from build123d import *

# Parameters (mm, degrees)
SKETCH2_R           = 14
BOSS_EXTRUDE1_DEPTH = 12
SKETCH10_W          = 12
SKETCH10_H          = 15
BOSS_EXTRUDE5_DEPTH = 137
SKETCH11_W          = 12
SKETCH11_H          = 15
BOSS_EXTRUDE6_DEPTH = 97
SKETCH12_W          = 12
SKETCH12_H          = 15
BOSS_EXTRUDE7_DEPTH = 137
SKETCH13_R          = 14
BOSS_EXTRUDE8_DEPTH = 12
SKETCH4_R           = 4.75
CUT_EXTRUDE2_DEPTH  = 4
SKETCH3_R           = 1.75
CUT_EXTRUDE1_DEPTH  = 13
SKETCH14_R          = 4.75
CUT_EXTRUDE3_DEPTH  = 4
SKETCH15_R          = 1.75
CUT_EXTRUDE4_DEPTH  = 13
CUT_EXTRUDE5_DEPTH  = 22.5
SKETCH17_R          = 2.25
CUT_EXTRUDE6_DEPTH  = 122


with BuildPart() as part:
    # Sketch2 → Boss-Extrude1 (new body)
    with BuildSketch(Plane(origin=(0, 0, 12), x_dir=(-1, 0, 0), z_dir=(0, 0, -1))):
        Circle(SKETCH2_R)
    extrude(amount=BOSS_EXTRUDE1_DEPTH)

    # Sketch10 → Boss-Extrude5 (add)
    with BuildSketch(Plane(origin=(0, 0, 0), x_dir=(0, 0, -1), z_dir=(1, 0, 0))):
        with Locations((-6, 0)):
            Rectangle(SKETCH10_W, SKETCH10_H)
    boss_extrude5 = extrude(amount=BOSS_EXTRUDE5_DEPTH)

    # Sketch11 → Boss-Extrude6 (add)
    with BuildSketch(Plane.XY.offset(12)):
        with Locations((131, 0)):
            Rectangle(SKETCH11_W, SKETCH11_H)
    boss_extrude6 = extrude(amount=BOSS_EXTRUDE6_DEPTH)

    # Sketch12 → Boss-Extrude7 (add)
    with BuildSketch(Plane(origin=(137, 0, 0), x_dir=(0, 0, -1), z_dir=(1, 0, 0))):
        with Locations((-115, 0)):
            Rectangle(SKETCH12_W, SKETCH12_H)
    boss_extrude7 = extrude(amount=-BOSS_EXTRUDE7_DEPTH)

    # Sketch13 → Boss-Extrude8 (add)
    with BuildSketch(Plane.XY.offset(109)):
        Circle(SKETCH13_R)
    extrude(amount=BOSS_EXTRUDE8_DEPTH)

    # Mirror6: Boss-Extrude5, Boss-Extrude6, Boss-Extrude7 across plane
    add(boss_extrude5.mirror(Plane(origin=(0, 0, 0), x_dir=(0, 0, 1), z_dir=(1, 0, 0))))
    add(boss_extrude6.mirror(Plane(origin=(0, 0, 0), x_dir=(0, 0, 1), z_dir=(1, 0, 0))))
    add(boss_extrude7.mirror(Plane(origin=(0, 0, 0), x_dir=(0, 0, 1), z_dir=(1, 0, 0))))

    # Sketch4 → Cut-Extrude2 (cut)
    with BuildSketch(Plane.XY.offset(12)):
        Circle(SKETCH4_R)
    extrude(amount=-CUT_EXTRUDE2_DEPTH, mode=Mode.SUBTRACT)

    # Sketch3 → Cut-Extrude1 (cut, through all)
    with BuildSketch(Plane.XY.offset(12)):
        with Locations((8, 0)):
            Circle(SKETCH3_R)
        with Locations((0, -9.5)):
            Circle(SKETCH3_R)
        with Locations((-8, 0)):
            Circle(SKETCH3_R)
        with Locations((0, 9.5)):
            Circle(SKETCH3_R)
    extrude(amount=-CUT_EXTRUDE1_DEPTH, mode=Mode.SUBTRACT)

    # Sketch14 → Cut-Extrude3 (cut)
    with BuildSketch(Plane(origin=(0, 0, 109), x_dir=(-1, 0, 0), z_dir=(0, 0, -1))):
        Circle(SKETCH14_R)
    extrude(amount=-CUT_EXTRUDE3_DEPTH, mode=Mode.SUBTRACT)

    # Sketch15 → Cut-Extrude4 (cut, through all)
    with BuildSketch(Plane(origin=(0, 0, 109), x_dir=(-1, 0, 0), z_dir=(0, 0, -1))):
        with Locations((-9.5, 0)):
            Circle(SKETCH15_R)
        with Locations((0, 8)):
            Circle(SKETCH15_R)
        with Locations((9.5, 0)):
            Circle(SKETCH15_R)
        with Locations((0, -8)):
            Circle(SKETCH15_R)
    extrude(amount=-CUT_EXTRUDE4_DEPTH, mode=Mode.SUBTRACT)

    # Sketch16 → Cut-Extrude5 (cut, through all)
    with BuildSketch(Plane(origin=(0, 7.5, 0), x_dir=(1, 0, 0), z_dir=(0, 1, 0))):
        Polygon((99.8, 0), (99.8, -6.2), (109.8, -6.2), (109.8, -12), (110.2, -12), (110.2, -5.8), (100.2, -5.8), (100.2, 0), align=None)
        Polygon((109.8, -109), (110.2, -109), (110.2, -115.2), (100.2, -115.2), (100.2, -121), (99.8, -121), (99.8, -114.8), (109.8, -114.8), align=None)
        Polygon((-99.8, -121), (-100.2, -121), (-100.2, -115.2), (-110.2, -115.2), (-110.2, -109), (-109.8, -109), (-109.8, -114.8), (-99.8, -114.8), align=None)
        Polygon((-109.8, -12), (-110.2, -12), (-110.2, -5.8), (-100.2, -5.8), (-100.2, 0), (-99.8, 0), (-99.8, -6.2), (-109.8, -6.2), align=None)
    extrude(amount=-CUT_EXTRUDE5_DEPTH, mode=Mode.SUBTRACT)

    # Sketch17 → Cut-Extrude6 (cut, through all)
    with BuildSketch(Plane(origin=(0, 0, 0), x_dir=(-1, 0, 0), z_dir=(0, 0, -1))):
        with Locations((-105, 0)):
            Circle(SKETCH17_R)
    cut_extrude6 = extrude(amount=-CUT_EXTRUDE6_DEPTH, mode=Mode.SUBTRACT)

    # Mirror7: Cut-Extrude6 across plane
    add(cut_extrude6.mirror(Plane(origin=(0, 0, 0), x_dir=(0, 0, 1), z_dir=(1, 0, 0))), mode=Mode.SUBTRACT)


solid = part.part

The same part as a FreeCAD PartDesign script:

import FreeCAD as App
import Part
import Sketcher
from FreeCAD import Vector
Q = App.Units.Quantity

doc = App.newDocument("Part")
params = doc.addObject("Spreadsheet::Sheet", "Params")
for row, (alias, value) in enumerate([
    ("sketch1_diameter", "28 mm"),
    ("pad1_length", "12 mm"),
    ("sketch2_width", "15 mm"),
    ("sketch2_height", "12 mm"),
    ("pad2_length", "137 mm"),
    ("sketch3_width", "12 mm"),
    ("sketch3_height", "15 mm"),
    ("pad3_length", "97 mm"),
    ("sketch4_width", "15 mm"),
    ("sketch4_height", "12 mm"),
    ("pad4_length", "137 mm"),
    ("sketch5_diameter", "28 mm"),
    ("pad5_length", "12 mm"),
    ("sketch6_diameter", "9.5 mm"),
    ("pocket1_length", "4 mm"),
    ("sketch7_diameter", "3.5 mm"),
    ("sketch8_diameter", "9.5 mm"),
    ("pocket3_length", "4 mm"),
    ("sketch9_diameter", "3.5 mm"),
    ("sketch10_width", "10 mm"),
    ("sketch10_width2", "0.4 mm"),
    ("sketch10_height", "6.2 mm"),
    ("sketch10_height2", "5.8 mm"),
    ("sketch11_diameter", "4.5 mm"),
], start=1):
    params.set(f"A{row}", alias)
    params.set(f"B{row}", "=" + value)
    params.setAlias(f"B{row}", alias)

body = doc.addObject("PartDesign::Body", "Body")
body.AllowCompound = True

# Sketch on XY plane
sketch1 = body.newObject("Sketcher::SketchObject", "Sketch")
sketch1.AttachmentSupport = (doc.getObject("XY_Plane"), [""])
sketch1.MapMode = "FlatFace"
sketch1.AttachmentOffset = App.Placement(Vector(0, 0, 12), App.Rotation())
sketch1.addGeometry(Part.Circle(Vector(0, 0, 0), Vector(0, 0, 1), 14), False)
sketch1.addConstraint([
    Sketcher.Constraint("Coincident", 0, 3, -1, 1),
    Sketcher.Constraint("Diameter", 0, Q("28 mm")),
])
sketch1.setExpression("Constraints[1]", "Params.sketch1_diameter")
pad1 = body.newObject("PartDesign::Pad", "Pad")
pad1.Profile = sketch1
pad1.setExpression("Length", "Params.pad1_length")
pad1.Reversed = True

# Sketch on YZ plane
sketch2 = body.newObject("Sketcher::SketchObject", "Sketch001")
sketch2.AttachmentSupport = (doc.getObject("YZ_Plane"), [""])
sketch2.MapMode = "FlatFace"
sketch2.addGeometry([
    Part.LineSegment(Vector(8, 12, 0), Vector(-8, 12, 0)),
    Part.LineSegment(Vector(-8, 12, 0), Vector(-8, 0, 0)),
    Part.LineSegment(Vector(-8, 0, 0), Vector(8, 0, 0)),
    Part.LineSegment(Vector(8, 0, 0), Vector(8, 12, 0)),
], False)
sketch2.addConstraint([
    Sketcher.Constraint("Coincident", 0, 2, 1, 1),
    Sketcher.Constraint("Coincident", 1, 2, 2, 1),
    Sketcher.Constraint("Coincident", 2, 2, 3, 1),
    Sketcher.Constraint("Coincident", 3, 2, 0, 1),
    Sketcher.Constraint("Horizontal", 0),
    Sketcher.Constraint("Vertical", 1),
    Sketcher.Constraint("Horizontal", 2),
    Sketcher.Constraint("Vertical", 3),
    Sketcher.Constraint("Symmetric", 1, 2, 2, 2, -1, 1),
    Sketcher.Constraint("DistanceX", 0, 2, 0, 1, Q("15 mm")),
    Sketcher.Constraint("DistanceY", 1, 2, 1, 1, Q("12 mm")),
])
sketch2.setExpression("Constraints[9]", "Params.sketch2_width")
sketch2.setExpression("Constraints[10]", "Params.sketch2_height")
pad2 = body.newObject("PartDesign::Pad", "Pad001")
pad2.Profile = sketch2
pad2.setExpression("Length", "Params.pad2_length")

# Sketch on XY plane
sketch3 = body.newObject("Sketcher::SketchObject", "Sketch002")
sketch3.AttachmentSupport = (doc.getObject("XY_Plane"), [""])
sketch3.MapMode = "FlatFace"
sketch3.AttachmentOffset = App.Placement(Vector(0, 0, 12), App.Rotation())
sketch3.addGeometry([
    Part.LineSegment(Vector(125, 8, 0), Vector(125, -8, 0)),
    Part.LineSegment(Vector(125, -8, 0), Vector(137, -8, 0)),
    Part.LineSegment(Vector(137, -8, 0), Vector(137, 8, 0)),
    Part.LineSegment(Vector(137, 8, 0), Vector(125, 8, 0)),
], False)
sketch3.addConstraint([
    Sketcher.Constraint("Coincident", 0, 2, 1, 1),
    Sketcher.Constraint("Coincident", 1, 2, 2, 1),
    Sketcher.Constraint("Coincident", 2, 2, 3, 1),
    Sketcher.Constraint("Coincident", 3, 2, 0, 1),
    Sketcher.Constraint("Vertical", 0),
    Sketcher.Constraint("Horizontal", 1),
    Sketcher.Constraint("Vertical", 2),
    Sketcher.Constraint("Horizontal", 3),
    Sketcher.Constraint("DistanceX", 1, 1, 1, 2, Q("12 mm")),
    Sketcher.Constraint("DistanceY", 0, 2, 0, 1, Q("15 mm")),
    Sketcher.Constraint("DistanceX", -1, 1, 0, 2, Q("125 mm")),
    Sketcher.Constraint("DistanceY", 0, 2, -1, 1, Q("7.5 mm")),
])
sketch3.setExpression("Constraints[8]", "Params.sketch3_width")
sketch3.setExpression("Constraints[9]", "Params.sketch3_height")
pad3 = body.newObject("PartDesign::Pad", "Pad002")
pad3.Profile = sketch3
pad3.setExpression("Length", "Params.pad3_length")

# Sketch on YZ plane
sketch4 = body.newObject("Sketcher::SketchObject", "Sketch003")
sketch4.AttachmentSupport = (doc.getObject("YZ_Plane"), [""])
sketch4.MapMode = "FlatFace"
sketch4.AttachmentOffset = App.Placement(Vector(0, 0, 137), App.Rotation())
sketch4.addGeometry([
    Part.LineSegment(Vector(8, 121, 0), Vector(-8, 121, 0)),
    Part.LineSegment(Vector(-8, 121, 0), Vector(-8, 109, 0)),
    Part.LineSegment(Vector(-8, 109, 0), Vector(8, 109, 0)),
    Part.LineSegment(Vector(8, 109, 0), Vector(8, 121, 0)),
], False)
sketch4.addConstraint([
    Sketcher.Constraint("Coincident", 0, 2, 1, 1),
    Sketcher.Constraint("Coincident", 1, 2, 2, 1),
    Sketcher.Constraint("Coincident", 2, 2, 3, 1),
    Sketcher.Constraint("Coincident", 3, 2, 0, 1),
    Sketcher.Constraint("Horizontal", 0),
    Sketcher.Constraint("Vertical", 1),
    Sketcher.Constraint("Horizontal", 2),
    Sketcher.Constraint("Vertical", 3),
    Sketcher.Constraint("DistanceX", 0, 2, 0, 1, Q("15 mm")),
    Sketcher.Constraint("DistanceY", 1, 2, 1, 1, Q("12 mm")),
    Sketcher.Constraint("DistanceY", -1, 1, 0, 2, Q("121 mm")),
    Sketcher.Constraint("DistanceX", 0, 2, -1, 1, Q("7.5 mm")),
])
sketch4.setExpression("Constraints[8]", "Params.sketch4_width")
sketch4.setExpression("Constraints[9]", "Params.sketch4_height")
pad4 = body.newObject("PartDesign::Pad", "Pad003")
pad4.Profile = sketch4
pad4.setExpression("Length", "Params.pad4_length")
pad4.Reversed = True

# Sketch on XY plane
sketch5 = body.newObject("Sketcher::SketchObject", "Sketch004")
sketch5.AttachmentSupport = (doc.getObject("XY_Plane"), [""])
sketch5.MapMode = "FlatFace"
sketch5.AttachmentOffset = App.Placement(Vector(0, 0, 109), App.Rotation())
sketch5.addGeometry(Part.Circle(Vector(0, 0, 0), Vector(0, 0, 1), 14), False)
sketch5.addConstraint([
    Sketcher.Constraint("Coincident", 0, 3, -1, 1),
    Sketcher.Constraint("Diameter", 0, Q("28 mm")),
])
sketch5.setExpression("Constraints[1]", "Params.sketch5_diameter")
pad5 = body.newObject("PartDesign::Pad", "Pad004")
pad5.Profile = sketch5
pad5.setExpression("Length", "Params.pad5_length")
doc.recompute()

mirrored = body.newObject("PartDesign::Mirrored", "Mirrored")
mirrored.Originals = [pad2, pad3, pad4]
mirrored.MirrorPlane = (doc.getObject("YZ_Plane"), [""])
body.Tip = mirrored

# Sketch on XY plane
sketch6 = body.newObject("Sketcher::SketchObject", "Sketch005")
sketch6.AttachmentSupport = (doc.getObject("XY_Plane"), [""])
sketch6.MapMode = "FlatFace"
sketch6.AttachmentOffset = App.Placement(Vector(0, 0, 12), App.Rotation())
sketch6.addGeometry(Part.Circle(Vector(0, 0, 0), Vector(0, 0, 1), 4.8), False)
sketch6.addConstraint([
    Sketcher.Constraint("Coincident", 0, 3, -1, 1),
    Sketcher.Constraint("Diameter", 0, Q("9.5 mm")),
])
sketch6.setExpression("Constraints[1]", "Params.sketch6_diameter")
pocket1 = body.newObject("PartDesign::Pocket", "Pocket")
pocket1.Profile = sketch6
pocket1.setExpression("Length", "Params.pocket1_length")

# Sketch on XY plane
sketch7 = body.newObject("Sketcher::SketchObject", "Sketch006")
sketch7.AttachmentSupport = (doc.getObject("XY_Plane"), [""])
sketch7.MapMode = "FlatFace"
sketch7.AttachmentOffset = App.Placement(Vector(0, 0, 12), App.Rotation())
sketch7.addGeometry([
    Part.Circle(Vector(8, 0, 0), Vector(0, 0, 1), 1.8),
    Part.Circle(Vector(0, -9.5, 0), Vector(0, 0, 1), 1.8),
    Part.Circle(Vector(-8, 0, 0), Vector(0, 0, 1), 1.8),
    Part.Circle(Vector(0, 9.5, 0), Vector(0, 0, 1), 1.8),
], False)
sketch7.addConstraint([
    Sketcher.Constraint("Equal", 0, 1),
    Sketcher.Constraint("Equal", 1, 2),
    Sketcher.Constraint("Equal", 2, 3),
    Sketcher.Constraint("Symmetric", 0, 3, 2, 3, -1, 1),
    Sketcher.Constraint("Symmetric", 1, 3, 3, 3, -1, 1),
    Sketcher.Constraint("PointOnObject", 0, 3, -1),
    Sketcher.Constraint("PointOnObject", 1, 3, -2),
    Sketcher.Constraint("Diameter", 0, Q("3.5 mm")),
    Sketcher.Constraint("DistanceX", -1, 1, 0, 3, Q("8 mm")),
    Sketcher.Constraint("DistanceY", 1, 3, 3, 3, Q("19 mm")),
])
sketch7.setExpression("Constraints[7]", "Params.sketch7_diameter")
pocket2 = body.newObject("PartDesign::Pocket", "Pocket001")
pocket2.Profile = sketch7
pocket2.Type = "ThroughAll"

# Sketch on XY plane
sketch8 = body.newObject("Sketcher::SketchObject", "Sketch007")
sketch8.AttachmentSupport = (doc.getObject("XY_Plane"), [""])
sketch8.MapMode = "FlatFace"
sketch8.AttachmentOffset = App.Placement(Vector(0, 0, 109), App.Rotation())
sketch8.addGeometry(Part.Circle(Vector(0, 0, 0), Vector(0, 0, 1), 4.8), False)
sketch8.addConstraint([
    Sketcher.Constraint("Coincident", 0, 3, -1, 1),
    Sketcher.Constraint("Diameter", 0, Q("9.5 mm")),
])
sketch8.setExpression("Constraints[1]", "Params.sketch8_diameter")
pocket3 = body.newObject("PartDesign::Pocket", "Pocket002")
pocket3.Profile = sketch8
pocket3.setExpression("Length", "Params.pocket3_length")
pocket3.Reversed = True

# Sketch on XY plane
sketch9 = body.newObject("Sketcher::SketchObject", "Sketch008")
sketch9.AttachmentSupport = (doc.getObject("XY_Plane"), [""])
sketch9.MapMode = "FlatFace"
sketch9.AttachmentOffset = App.Placement(Vector(0, 0, 109), App.Rotation())
sketch9.addGeometry([
    Part.Circle(Vector(9.5, 0, 0), Vector(0, 0, 1), 1.8),
    Part.Circle(Vector(0, 8, 0), Vector(0, 0, 1), 1.8),
    Part.Circle(Vector(-9.5, 0, 0), Vector(0, 0, 1), 1.8),
    Part.Circle(Vector(0, -8, 0), Vector(0, 0, 1), 1.8),
], False)
sketch9.addConstraint([
    Sketcher.Constraint("Equal", 0, 1),
    Sketcher.Constraint("Equal", 1, 2),
    Sketcher.Constraint("Equal", 2, 3),
    Sketcher.Constraint("Symmetric", 0, 3, 2, 3, -1, 1),
    Sketcher.Constraint("Symmetric", 1, 3, 3, 3, -1, 1),
    Sketcher.Constraint("PointOnObject", 0, 3, -1),
    Sketcher.Constraint("PointOnObject", 1, 3, -2),
    Sketcher.Constraint("Diameter", 0, Q("3.5 mm")),
    Sketcher.Constraint("DistanceY", -1, 1, 1, 3, Q("8 mm")),
    Sketcher.Constraint("DistanceX", 2, 3, 0, 3, Q("19 mm")),
])
sketch9.setExpression("Constraints[7]", "Params.sketch9_diameter")
pocket4 = body.newObject("PartDesign::Pocket", "Pocket003")
pocket4.Profile = sketch9
pocket4.Type = "ThroughAll"
pocket4.Reversed = True

# Sketch on XZ plane
sketch10 = body.newObject("Sketcher::SketchObject", "Sketch009")
sketch10.AttachmentSupport = (doc.getObject("XZ_Plane"), [""])
sketch10.MapMode = "FlatFace"
sketch10.AttachmentOffset = App.Placement(Vector(0, 0, -7.5), App.Rotation())
sketch10.addGeometry([
    Part.LineSegment(Vector(99.8, 0, 0), Vector(99.8, 6.2, 0)),  # 0
    Part.LineSegment(Vector(99.8, 6.2, 0), Vector(109.8, 6.2, 0)),  # 1
    Part.LineSegment(Vector(109.8, 6.2, 0), Vector(109.8, 12, 0)),  # 2
    Part.LineSegment(Vector(109.8, 12, 0), Vector(110.2, 12, 0)),  # 3
    Part.LineSegment(Vector(110.2, 12, 0), Vector(110.2, 5.8, 0)),  # 4
    Part.LineSegment(Vector(110.2, 5.8, 0), Vector(100.2, 5.8, 0)),  # 5
    Part.LineSegment(Vector(100.2, 5.8, 0), Vector(100.2, 0, 0)),  # 6
    Part.LineSegment(Vector(100.2, 0, 0), Vector(99.8, 0, 0)),  # 7
    Part.LineSegment(Vector(110.2, 109, 0), Vector(109.8, 109, 0)),  # 8
    Part.LineSegment(Vector(109.8, 109, 0), Vector(109.8, 114.8, 0)),  # 9
    Part.LineSegment(Vector(109.8, 114.8, 0), Vector(99.8, 114.8, 0)),  # 10
    Part.LineSegment(Vector(99.8, 114.8, 0), Vector(99.8, 121, 0)),  # 11
    Part.LineSegment(Vector(99.8, 121, 0), Vector(100.2, 121, 0)),  # 12
    Part.LineSegment(Vector(100.2, 121, 0), Vector(100.2, 115.2, 0)),  # 13
    Part.LineSegment(Vector(100.2, 115.2, 0), Vector(110.2, 115.2, 0)),  # 14
    Part.LineSegment(Vector(110.2, 115.2, 0), Vector(110.2, 109, 0)),  # 15
    Part.LineSegment(Vector(-100.2, 121, 0), Vector(-99.8, 121, 0)),  # 16
    Part.LineSegment(Vector(-99.8, 121, 0), Vector(-99.8, 114.8, 0)),  # 17
    Part.LineSegment(Vector(-99.8, 114.8, 0), Vector(-109.8, 114.8, 0)),  # 18
    Part.LineSegment(Vector(-109.8, 114.8, 0), Vector(-109.8, 109, 0)),  # 19
    Part.LineSegment(Vector(-109.8, 109, 0), Vector(-110.2, 109, 0)),  # 20
    Part.LineSegment(Vector(-110.2, 109, 0), Vector(-110.2, 115.2, 0)),  # 21
    Part.LineSegment(Vector(-110.2, 115.2, 0), Vector(-100.2, 115.2, 0)),  # 22
    Part.LineSegment(Vector(-100.2, 115.2, 0), Vector(-100.2, 121, 0)),  # 23
    Part.LineSegment(Vector(-110.2, 12, 0), Vector(-109.8, 12, 0)),  # 24
    Part.LineSegment(Vector(-109.8, 12, 0), Vector(-109.8, 6.2, 0)),  # 25
    Part.LineSegment(Vector(-109.8, 6.2, 0), Vector(-99.8, 6.2, 0)),  # 26
    Part.LineSegment(Vector(-99.8, 6.2, 0), Vector(-99.8, 0, 0)),  # 27
    Part.LineSegment(Vector(-99.8, 0, 0), Vector(-100.2, 0, 0)),  # 28
    Part.LineSegment(Vector(-100.2, 0, 0), Vector(-100.2, 5.8, 0)),  # 29
    Part.LineSegment(Vector(-100.2, 5.8, 0), Vector(-110.2, 5.8, 0)),  # 30
    Part.LineSegment(Vector(-110.2, 5.8, 0), Vector(-110.2, 12, 0)),  # 31
], False)
sketch10.addConstraint([
    Sketcher.Constraint("Coincident", 0, 2, 1, 1),
    Sketcher.Constraint("Coincident", 1, 2, 2, 1),
    Sketcher.Constraint("Coincident", 2, 2, 3, 1),
    Sketcher.Constraint("Coincident", 3, 2, 4, 1),
    Sketcher.Constraint("Coincident", 4, 2, 5, 1),
    Sketcher.Constraint("Coincident", 5, 2, 6, 1),
    Sketcher.Constraint("Coincident", 6, 2, 7, 1),
    Sketcher.Constraint("Coincident", 7, 2, 0, 1),
    Sketcher.Constraint("Coincident", 8, 2, 9, 1),
    Sketcher.Constraint("Coincident", 9, 2, 10, 1),
    Sketcher.Constraint("Coincident", 10, 2, 11, 1),
    Sketcher.Constraint("Coincident", 11, 2, 12, 1),
    Sketcher.Constraint("Coincident", 12, 2, 13, 1),
    Sketcher.Constraint("Coincident", 13, 2, 14, 1),
    Sketcher.Constraint("Coincident", 14, 2, 15, 1),
    Sketcher.Constraint("Coincident", 15, 2, 8, 1),
    Sketcher.Constraint("Coincident", 16, 2, 17, 1),
    Sketcher.Constraint("Coincident", 17, 2, 18, 1),
    Sketcher.Constraint("Coincident", 18, 2, 19, 1),
    Sketcher.Constraint("Coincident", 19, 2, 20, 1),
    Sketcher.Constraint("Coincident", 20, 2, 21, 1),
    Sketcher.Constraint("Coincident", 21, 2, 22, 1),
    Sketcher.Constraint("Coincident", 22, 2, 23, 1),
    Sketcher.Constraint("Coincident", 23, 2, 16, 1),
    Sketcher.Constraint("Coincident", 24, 2, 25, 1),
    Sketcher.Constraint("Coincident", 25, 2, 26, 1),
    Sketcher.Constraint("Coincident", 26, 2, 27, 1),
    Sketcher.Constraint("Coincident", 27, 2, 28, 1),
    Sketcher.Constraint("Coincident", 28, 2, 29, 1),
    Sketcher.Constraint("Coincident", 29, 2, 30, 1),
    Sketcher.Constraint("Coincident", 30, 2, 31, 1),
    Sketcher.Constraint("Coincident", 31, 2, 24, 1),
    Sketcher.Constraint("Vertical", 0),
    Sketcher.Constraint("Horizontal", 1),
    Sketcher.Constraint("Vertical", 2),
    Sketcher.Constraint("Horizontal", 3),
    Sketcher.Constraint("Vertical", 4),
    Sketcher.Constraint("Horizontal", 5),
    Sketcher.Constraint("Vertical", 6),
    Sketcher.Constraint("Horizontal", 7),
    Sketcher.Constraint("Horizontal", 8),
    Sketcher.Constraint("Vertical", 9),
    Sketcher.Constraint("Horizontal", 10),
    Sketcher.Constraint("Vertical", 11),
    Sketcher.Constraint("Horizontal", 12),
    Sketcher.Constraint("Vertical", 13),
    Sketcher.Constraint("Horizontal", 14),
    Sketcher.Constraint("Vertical", 15),
    Sketcher.Constraint("Horizontal", 16),
    Sketcher.Constraint("Vertical", 17),
    Sketcher.Constraint("Horizontal", 18),
    Sketcher.Constraint("Vertical", 19),
    Sketcher.Constraint("Horizontal", 20),
    Sketcher.Constraint("Vertical", 21),
    Sketcher.Constraint("Horizontal", 22),
    Sketcher.Constraint("Vertical", 23),
    Sketcher.Constraint("Horizontal", 24),
    Sketcher.Constraint("Vertical", 25),
    Sketcher.Constraint("Horizontal", 26),
    Sketcher.Constraint("Vertical", 27),
    Sketcher.Constraint("Horizontal", 28),
    Sketcher.Constraint("Vertical", 29),
    Sketcher.Constraint("Horizontal", 30),
    Sketcher.Constraint("Vertical", 31),
    Sketcher.Constraint("Symmetric", 7, 2, 27, 2, -1, 1),
    Sketcher.Constraint("Symmetric", 11, 2, 16, 2, -2),
    Sketcher.Constraint("Symmetric", 9, 2, 18, 2, -2),
    Sketcher.Constraint("Symmetric", 15, 2, 20, 2, -2),
    Sketcher.Constraint("Symmetric", 13, 2, 22, 2, -2),
    Sketcher.Constraint("Symmetric", 2, 2, 24, 2, -2),
    Sketcher.Constraint("Symmetric", 6, 2, 28, 2, -2),
    Sketcher.Constraint("Symmetric", 4, 2, 30, 2, -2),
    Sketcher.Constraint("Horizontal", 1, 2, 25, 2),
    Sketcher.Constraint("Vertical", 2, 2, 8, 2),
    Sketcher.Constraint("Vertical", 7, 2, 10, 2),
    Sketcher.Constraint("Vertical", 6, 2, 12, 2),
    Sketcher.Constraint("Vertical", 4, 2, 14, 2),
    Sketcher.Constraint("Equal", 1, 5),
    Sketcher.Constraint("Equal", 0, 4),
    Sketcher.Constraint("Equal", 6, 9),
    Sketcher.Constraint("Equal", 4, 11),
    Sketcher.Constraint("Equal", 9, 13),
    Sketcher.Constraint("DistanceX", 1, 1, 1, 2, Q("10 mm")),
    Sketcher.Constraint("DistanceX", 3, 1, 3, 2, Q("0.4 mm")),
    Sketcher.Constraint("DistanceY", 0, 1, 0, 2, Q("6.2 mm")),
    Sketcher.Constraint("DistanceY", 2, 1, 2, 2, Q("5.8 mm")),
    Sketcher.Constraint("DistanceY", -1, 1, 8, 2, Q("109 mm")),
    Sketcher.Constraint("DistanceX", 16, 2, 12, 2, Q("200 mm")),
])
sketch10.setExpression("Constraints[82]", "Params.sketch10_width")
sketch10.setExpression("Constraints[83]", "Params.sketch10_width2")
sketch10.setExpression("Constraints[84]", "Params.sketch10_height")
sketch10.setExpression("Constraints[85]", "Params.sketch10_height2")
pocket5 = body.newObject("PartDesign::Pocket", "Pocket004")
pocket5.Profile = sketch10
pocket5.Type = "ThroughAll"
pocket5.Reversed = True

# Sketch on XY plane
sketch11 = body.newObject("Sketcher::SketchObject", "Sketch010")
sketch11.AttachmentSupport = (doc.getObject("XY_Plane"), [""])
sketch11.MapMode = "FlatFace"
sketch11.addGeometry(Part.Circle(Vector(105, 0, 0), Vector(0, 0, 1), 2.2), False)
sketch11.addConstraint([
    Sketcher.Constraint("PointOnObject", 0, 3, -1),
    Sketcher.Constraint("Diameter", 0, Q("4.5 mm")),
    Sketcher.Constraint("DistanceX", -1, 1, 0, 3, Q("105 mm")),
])
sketch11.setExpression("Constraints[1]", "Params.sketch11_diameter")
pocket6 = body.newObject("PartDesign::Pocket", "Pocket005")
pocket6.Profile = sketch11
pocket6.Type = "ThroughAll"
pocket6.Reversed = True
doc.recompute()

mirrored2 = body.newObject("PartDesign::Mirrored", "Mirrored001")
mirrored2.Originals = [pocket6]
mirrored2.MirrorPlane = (doc.getObject("YZ_Plane"), [""])
body.Tip = mirrored2

doc.recompute()
